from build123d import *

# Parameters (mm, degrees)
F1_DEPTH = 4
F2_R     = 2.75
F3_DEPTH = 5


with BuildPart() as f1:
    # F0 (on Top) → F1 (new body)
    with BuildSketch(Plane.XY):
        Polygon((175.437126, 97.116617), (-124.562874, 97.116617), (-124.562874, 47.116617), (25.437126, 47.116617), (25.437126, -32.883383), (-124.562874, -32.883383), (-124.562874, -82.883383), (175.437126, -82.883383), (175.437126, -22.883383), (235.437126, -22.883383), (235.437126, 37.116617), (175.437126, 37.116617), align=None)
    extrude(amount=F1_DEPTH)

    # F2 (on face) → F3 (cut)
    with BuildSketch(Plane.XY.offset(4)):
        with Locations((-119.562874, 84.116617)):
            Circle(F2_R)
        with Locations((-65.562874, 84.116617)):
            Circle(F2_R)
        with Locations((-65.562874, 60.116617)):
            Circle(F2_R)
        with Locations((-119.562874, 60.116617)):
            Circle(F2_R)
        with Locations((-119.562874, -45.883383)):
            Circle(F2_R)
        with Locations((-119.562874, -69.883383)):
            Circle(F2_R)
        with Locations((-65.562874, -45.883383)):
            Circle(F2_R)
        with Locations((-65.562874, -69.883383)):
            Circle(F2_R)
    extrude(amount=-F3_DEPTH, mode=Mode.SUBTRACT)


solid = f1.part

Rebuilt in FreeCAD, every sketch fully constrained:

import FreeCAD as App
import Part
import Sketcher
from FreeCAD import Vector
Q = App.Units.Quantity

doc = App.newDocument("Part")
body = doc.addObject("PartDesign::Body", "Body")

# Sketch on XY plane
sketch1 = body.newObject("Sketcher::SketchObject", "Sketch")
sketch1.AttachmentSupport = (doc.getObject("XY_Plane"), [""])
sketch1.MapMode = "FlatFace"
sketch1.addGeometry([
    Part.LineSegment(Vector(175, 97, 0), Vector(-125, 97, 0)),  # 0
    Part.LineSegment(Vector(-125, 97, 0), Vector(-125, 47, 0)),  # 1
    Part.LineSegment(Vector(-125, 47, 0), Vector(25, 47, 0)),  # 2
    Part.LineSegment(Vector(25, 47, 0), Vector(25, -33, 0)),  # 3
    Part.LineSegment(Vector(25, -33, 0), Vector(-125, -33, 0)),  # 4
    Part.LineSegment(Vector(-125, -33, 0), Vector(-125, -83, 0)),  # 5
    Part.LineSegment(Vector(-125, -83, 0), Vector(175, -83, 0)),  # 6
    Part.LineSegment(Vector(175, -83, 0), Vector(175, -23, 0)),  # 7
    Part.LineSegment(Vector(175, -23, 0), Vector(235, -23, 0)),  # 8
    Part.LineSegment(Vector(235, -23, 0), Vector(235, 37, 0)),  # 9
    Part.LineSegment(Vector(235, 37, 0), Vector(175, 37, 0)),  # 10
    Part.LineSegment(Vector(175, 37, 0), Vector(175, 97, 0)),  # 11
], False)
sketch1.addConstraint([
    Sketcher.Constraint("Coincident", 0, 2, 1, 1),
    Sketcher.Constraint("Coincident", 1, 2, 2, 1),
    Sketcher.Constraint("Coincident", 2, 2, 3, 1),
    Sketcher.Constraint("Coincident", 3, 2, 4, 1),
    Sketcher.Constraint("Coincident", 4, 2, 5, 1),
    Sketcher.Constraint("Coincident", 5, 2, 6, 1),
    Sketcher.Constraint("Coincident", 6, 2, 7, 1),
    Sketcher.Constraint("Coincident", 7, 2, 8, 1),
    Sketcher.Constraint("Coincident", 8, 2, 9, 1),
    Sketcher.Constraint("Coincident", 9, 2, 10, 1),
    Sketcher.Constraint("Coincident", 10, 2, 11, 1),
    Sketcher.Constraint("Coincident", 11, 2, 0, 1),
    Sketcher.Constraint("Horizontal", 0),
    Sketcher.Constraint("Vertical", 1),
    Sketcher.Constraint("Horizontal", 2),
    Sketcher.Constraint("Vertical", 3),
    Sketcher.Constraint("Horizontal", 4),
    Sketcher.Constraint("Vertical", 5),
    Sketcher.Constraint("Horizontal", 6),
    Sketcher.Constraint("Vertical", 7),
    Sketcher.Constraint("Horizontal", 8),
    Sketcher.Constraint("Vertical", 9),
    Sketcher.Constraint("Horizontal", 10),
    Sketcher.Constraint("Vertical", 11),
    Sketcher.Constraint("Vertical", 1, 2, 4, 2),
    Sketcher.Constraint("Vertical", 7, 2, 10, 2),
    Sketcher.Constraint("Equal", 1, 5),
    Sketcher.Constraint("Equal", 10, 7),
    Sketcher.Constraint("Equal", 7, 9),
    Sketcher.Constraint("Equal", 9, 11),
    Sketcher.Constraint("DistanceX", 0, 2, 0, 1, Q("300 mm")),
    Sketcher.Constraint("DistanceX", 2, 1, 2, 2, Q("150 mm")),
    Sketcher.Constraint("DistanceX", 8, 1, 8, 2, Q("60 mm")),
    Sketcher.Constraint("DistanceY", 1, 2, 1, 1, Q("50 mm")),
    Sketcher.Constraint("DistanceX", 0, 2, -1, 1, Q("124.562874 mm")),
    Sketcher.Constraint("DistanceY", -1, 1, 0, 2, Q("97.116617 mm")),
])
pad1 = body.newObject("PartDesign::Pad", "Pad")
pad1.Profile = sketch1
pad1.Length = 4

# Sketch on XY plane
sketch2 = body.newObject("Sketcher::SketchObject", "Sketch001")
sketch2.AttachmentSupport = (doc.getObject("XY_Plane"), [""])
sketch2.MapMode = "FlatFace"
sketch2.AttachmentOffset = App.Placement(Vector(0, 0, 4), App.Rotation())
sketch2.addGeometry([
    Part.Circle(Vector(-119.6, 84.1, 0), Vector(0, 0, 1), 2.8),  # 0
    Part.Circle(Vector(-65.6, 84.1, 0), Vector(0, 0, 1), 2.8),  # 1
    Part.Circle(Vector(-65.6, 60.1, 0), Vector(0, 0, 1), 2.8),  # 2
    Part.Circle(Vector(-119.6, 60.1, 0), Vector(0, 0, 1), 2.8),  # 3
    Part.Circle(Vector(-119.6, -45.9, 0), Vector(0, 0, 1), 2.8),  # 4
    Part.Circle(Vector(-119.6, -69.9, 0), Vector(0, 0, 1), 2.8),  # 5
    Part.Circle(Vector(-65.6, -45.9, 0), Vector(0, 0, 1), 2.8),  # 6
    Part.Circle(Vector(-65.6, -69.9, 0), Vector(0, 0, 1), 2.8),  # 7
], False)
sketch2.addConstraint([
    Sketcher.Constraint("Equal", 0, 1),
    Sketcher.Constraint("Equal", 1, 2),
    Sketcher.Constraint("Equal", 2, 3),
    Sketcher.Constraint("Equal", 3, 4),
    Sketcher.Constraint("Equal", 4, 5),
    Sketcher.Constraint("Equal", 5, 6),
    Sketcher.Constraint("Equal", 6, 7),
    Sketcher.Constraint("Horizontal", 0, 3, 1, 3),
    Sketcher.Constraint("Horizontal", 2, 3, 3, 3),
    Sketcher.Constraint("Horizontal", 4, 3, 6, 3),
    Sketcher.Constraint("Horizontal", 5, 3, 7, 3),
    Sketcher.Constraint("Vertical", 1, 3, 2, 3),
    Sketcher.Constraint("Vertical", 0, 3, 3, 3),
    Sketcher.Constraint("Vertical", 3, 3, 4, 3),
    Sketcher.Constraint("Vertical", 4, 3, 5, 3),
    Sketcher.Constraint("Vertical", 2, 3, 6, 3),
    Sketcher.Constraint("Vertical", 6, 3, 7, 3),
    Sketcher.Constraint("Diameter", 0, Q("5.5 mm")),
    Sketcher.Constraint("DistanceX", 0, 3, 1, 3, Q("54 mm")),
    Sketcher.Constraint("DistanceY", 2, 3, 1, 3, Q("24 mm")),
    Sketcher.Constraint("DistanceY", 4, 3, 3, 3, Q("106 mm")),
    Sketcher.Constraint("DistanceY", 5, 3, 4, 3, Q("24 mm")),
    Sketcher.Constraint("DistanceX", 0, 3, -1, 1, Q("119.562874 mm")),
    Sketcher.Constraint("DistanceY", -1, 1, 0, 3, Q("84.116617 mm")),
])
pocket1 = body.newObject("PartDesign::Pocket", "Pocket")
pocket1.Profile = sketch2
pocket1.Length = 5

doc.recompute()
